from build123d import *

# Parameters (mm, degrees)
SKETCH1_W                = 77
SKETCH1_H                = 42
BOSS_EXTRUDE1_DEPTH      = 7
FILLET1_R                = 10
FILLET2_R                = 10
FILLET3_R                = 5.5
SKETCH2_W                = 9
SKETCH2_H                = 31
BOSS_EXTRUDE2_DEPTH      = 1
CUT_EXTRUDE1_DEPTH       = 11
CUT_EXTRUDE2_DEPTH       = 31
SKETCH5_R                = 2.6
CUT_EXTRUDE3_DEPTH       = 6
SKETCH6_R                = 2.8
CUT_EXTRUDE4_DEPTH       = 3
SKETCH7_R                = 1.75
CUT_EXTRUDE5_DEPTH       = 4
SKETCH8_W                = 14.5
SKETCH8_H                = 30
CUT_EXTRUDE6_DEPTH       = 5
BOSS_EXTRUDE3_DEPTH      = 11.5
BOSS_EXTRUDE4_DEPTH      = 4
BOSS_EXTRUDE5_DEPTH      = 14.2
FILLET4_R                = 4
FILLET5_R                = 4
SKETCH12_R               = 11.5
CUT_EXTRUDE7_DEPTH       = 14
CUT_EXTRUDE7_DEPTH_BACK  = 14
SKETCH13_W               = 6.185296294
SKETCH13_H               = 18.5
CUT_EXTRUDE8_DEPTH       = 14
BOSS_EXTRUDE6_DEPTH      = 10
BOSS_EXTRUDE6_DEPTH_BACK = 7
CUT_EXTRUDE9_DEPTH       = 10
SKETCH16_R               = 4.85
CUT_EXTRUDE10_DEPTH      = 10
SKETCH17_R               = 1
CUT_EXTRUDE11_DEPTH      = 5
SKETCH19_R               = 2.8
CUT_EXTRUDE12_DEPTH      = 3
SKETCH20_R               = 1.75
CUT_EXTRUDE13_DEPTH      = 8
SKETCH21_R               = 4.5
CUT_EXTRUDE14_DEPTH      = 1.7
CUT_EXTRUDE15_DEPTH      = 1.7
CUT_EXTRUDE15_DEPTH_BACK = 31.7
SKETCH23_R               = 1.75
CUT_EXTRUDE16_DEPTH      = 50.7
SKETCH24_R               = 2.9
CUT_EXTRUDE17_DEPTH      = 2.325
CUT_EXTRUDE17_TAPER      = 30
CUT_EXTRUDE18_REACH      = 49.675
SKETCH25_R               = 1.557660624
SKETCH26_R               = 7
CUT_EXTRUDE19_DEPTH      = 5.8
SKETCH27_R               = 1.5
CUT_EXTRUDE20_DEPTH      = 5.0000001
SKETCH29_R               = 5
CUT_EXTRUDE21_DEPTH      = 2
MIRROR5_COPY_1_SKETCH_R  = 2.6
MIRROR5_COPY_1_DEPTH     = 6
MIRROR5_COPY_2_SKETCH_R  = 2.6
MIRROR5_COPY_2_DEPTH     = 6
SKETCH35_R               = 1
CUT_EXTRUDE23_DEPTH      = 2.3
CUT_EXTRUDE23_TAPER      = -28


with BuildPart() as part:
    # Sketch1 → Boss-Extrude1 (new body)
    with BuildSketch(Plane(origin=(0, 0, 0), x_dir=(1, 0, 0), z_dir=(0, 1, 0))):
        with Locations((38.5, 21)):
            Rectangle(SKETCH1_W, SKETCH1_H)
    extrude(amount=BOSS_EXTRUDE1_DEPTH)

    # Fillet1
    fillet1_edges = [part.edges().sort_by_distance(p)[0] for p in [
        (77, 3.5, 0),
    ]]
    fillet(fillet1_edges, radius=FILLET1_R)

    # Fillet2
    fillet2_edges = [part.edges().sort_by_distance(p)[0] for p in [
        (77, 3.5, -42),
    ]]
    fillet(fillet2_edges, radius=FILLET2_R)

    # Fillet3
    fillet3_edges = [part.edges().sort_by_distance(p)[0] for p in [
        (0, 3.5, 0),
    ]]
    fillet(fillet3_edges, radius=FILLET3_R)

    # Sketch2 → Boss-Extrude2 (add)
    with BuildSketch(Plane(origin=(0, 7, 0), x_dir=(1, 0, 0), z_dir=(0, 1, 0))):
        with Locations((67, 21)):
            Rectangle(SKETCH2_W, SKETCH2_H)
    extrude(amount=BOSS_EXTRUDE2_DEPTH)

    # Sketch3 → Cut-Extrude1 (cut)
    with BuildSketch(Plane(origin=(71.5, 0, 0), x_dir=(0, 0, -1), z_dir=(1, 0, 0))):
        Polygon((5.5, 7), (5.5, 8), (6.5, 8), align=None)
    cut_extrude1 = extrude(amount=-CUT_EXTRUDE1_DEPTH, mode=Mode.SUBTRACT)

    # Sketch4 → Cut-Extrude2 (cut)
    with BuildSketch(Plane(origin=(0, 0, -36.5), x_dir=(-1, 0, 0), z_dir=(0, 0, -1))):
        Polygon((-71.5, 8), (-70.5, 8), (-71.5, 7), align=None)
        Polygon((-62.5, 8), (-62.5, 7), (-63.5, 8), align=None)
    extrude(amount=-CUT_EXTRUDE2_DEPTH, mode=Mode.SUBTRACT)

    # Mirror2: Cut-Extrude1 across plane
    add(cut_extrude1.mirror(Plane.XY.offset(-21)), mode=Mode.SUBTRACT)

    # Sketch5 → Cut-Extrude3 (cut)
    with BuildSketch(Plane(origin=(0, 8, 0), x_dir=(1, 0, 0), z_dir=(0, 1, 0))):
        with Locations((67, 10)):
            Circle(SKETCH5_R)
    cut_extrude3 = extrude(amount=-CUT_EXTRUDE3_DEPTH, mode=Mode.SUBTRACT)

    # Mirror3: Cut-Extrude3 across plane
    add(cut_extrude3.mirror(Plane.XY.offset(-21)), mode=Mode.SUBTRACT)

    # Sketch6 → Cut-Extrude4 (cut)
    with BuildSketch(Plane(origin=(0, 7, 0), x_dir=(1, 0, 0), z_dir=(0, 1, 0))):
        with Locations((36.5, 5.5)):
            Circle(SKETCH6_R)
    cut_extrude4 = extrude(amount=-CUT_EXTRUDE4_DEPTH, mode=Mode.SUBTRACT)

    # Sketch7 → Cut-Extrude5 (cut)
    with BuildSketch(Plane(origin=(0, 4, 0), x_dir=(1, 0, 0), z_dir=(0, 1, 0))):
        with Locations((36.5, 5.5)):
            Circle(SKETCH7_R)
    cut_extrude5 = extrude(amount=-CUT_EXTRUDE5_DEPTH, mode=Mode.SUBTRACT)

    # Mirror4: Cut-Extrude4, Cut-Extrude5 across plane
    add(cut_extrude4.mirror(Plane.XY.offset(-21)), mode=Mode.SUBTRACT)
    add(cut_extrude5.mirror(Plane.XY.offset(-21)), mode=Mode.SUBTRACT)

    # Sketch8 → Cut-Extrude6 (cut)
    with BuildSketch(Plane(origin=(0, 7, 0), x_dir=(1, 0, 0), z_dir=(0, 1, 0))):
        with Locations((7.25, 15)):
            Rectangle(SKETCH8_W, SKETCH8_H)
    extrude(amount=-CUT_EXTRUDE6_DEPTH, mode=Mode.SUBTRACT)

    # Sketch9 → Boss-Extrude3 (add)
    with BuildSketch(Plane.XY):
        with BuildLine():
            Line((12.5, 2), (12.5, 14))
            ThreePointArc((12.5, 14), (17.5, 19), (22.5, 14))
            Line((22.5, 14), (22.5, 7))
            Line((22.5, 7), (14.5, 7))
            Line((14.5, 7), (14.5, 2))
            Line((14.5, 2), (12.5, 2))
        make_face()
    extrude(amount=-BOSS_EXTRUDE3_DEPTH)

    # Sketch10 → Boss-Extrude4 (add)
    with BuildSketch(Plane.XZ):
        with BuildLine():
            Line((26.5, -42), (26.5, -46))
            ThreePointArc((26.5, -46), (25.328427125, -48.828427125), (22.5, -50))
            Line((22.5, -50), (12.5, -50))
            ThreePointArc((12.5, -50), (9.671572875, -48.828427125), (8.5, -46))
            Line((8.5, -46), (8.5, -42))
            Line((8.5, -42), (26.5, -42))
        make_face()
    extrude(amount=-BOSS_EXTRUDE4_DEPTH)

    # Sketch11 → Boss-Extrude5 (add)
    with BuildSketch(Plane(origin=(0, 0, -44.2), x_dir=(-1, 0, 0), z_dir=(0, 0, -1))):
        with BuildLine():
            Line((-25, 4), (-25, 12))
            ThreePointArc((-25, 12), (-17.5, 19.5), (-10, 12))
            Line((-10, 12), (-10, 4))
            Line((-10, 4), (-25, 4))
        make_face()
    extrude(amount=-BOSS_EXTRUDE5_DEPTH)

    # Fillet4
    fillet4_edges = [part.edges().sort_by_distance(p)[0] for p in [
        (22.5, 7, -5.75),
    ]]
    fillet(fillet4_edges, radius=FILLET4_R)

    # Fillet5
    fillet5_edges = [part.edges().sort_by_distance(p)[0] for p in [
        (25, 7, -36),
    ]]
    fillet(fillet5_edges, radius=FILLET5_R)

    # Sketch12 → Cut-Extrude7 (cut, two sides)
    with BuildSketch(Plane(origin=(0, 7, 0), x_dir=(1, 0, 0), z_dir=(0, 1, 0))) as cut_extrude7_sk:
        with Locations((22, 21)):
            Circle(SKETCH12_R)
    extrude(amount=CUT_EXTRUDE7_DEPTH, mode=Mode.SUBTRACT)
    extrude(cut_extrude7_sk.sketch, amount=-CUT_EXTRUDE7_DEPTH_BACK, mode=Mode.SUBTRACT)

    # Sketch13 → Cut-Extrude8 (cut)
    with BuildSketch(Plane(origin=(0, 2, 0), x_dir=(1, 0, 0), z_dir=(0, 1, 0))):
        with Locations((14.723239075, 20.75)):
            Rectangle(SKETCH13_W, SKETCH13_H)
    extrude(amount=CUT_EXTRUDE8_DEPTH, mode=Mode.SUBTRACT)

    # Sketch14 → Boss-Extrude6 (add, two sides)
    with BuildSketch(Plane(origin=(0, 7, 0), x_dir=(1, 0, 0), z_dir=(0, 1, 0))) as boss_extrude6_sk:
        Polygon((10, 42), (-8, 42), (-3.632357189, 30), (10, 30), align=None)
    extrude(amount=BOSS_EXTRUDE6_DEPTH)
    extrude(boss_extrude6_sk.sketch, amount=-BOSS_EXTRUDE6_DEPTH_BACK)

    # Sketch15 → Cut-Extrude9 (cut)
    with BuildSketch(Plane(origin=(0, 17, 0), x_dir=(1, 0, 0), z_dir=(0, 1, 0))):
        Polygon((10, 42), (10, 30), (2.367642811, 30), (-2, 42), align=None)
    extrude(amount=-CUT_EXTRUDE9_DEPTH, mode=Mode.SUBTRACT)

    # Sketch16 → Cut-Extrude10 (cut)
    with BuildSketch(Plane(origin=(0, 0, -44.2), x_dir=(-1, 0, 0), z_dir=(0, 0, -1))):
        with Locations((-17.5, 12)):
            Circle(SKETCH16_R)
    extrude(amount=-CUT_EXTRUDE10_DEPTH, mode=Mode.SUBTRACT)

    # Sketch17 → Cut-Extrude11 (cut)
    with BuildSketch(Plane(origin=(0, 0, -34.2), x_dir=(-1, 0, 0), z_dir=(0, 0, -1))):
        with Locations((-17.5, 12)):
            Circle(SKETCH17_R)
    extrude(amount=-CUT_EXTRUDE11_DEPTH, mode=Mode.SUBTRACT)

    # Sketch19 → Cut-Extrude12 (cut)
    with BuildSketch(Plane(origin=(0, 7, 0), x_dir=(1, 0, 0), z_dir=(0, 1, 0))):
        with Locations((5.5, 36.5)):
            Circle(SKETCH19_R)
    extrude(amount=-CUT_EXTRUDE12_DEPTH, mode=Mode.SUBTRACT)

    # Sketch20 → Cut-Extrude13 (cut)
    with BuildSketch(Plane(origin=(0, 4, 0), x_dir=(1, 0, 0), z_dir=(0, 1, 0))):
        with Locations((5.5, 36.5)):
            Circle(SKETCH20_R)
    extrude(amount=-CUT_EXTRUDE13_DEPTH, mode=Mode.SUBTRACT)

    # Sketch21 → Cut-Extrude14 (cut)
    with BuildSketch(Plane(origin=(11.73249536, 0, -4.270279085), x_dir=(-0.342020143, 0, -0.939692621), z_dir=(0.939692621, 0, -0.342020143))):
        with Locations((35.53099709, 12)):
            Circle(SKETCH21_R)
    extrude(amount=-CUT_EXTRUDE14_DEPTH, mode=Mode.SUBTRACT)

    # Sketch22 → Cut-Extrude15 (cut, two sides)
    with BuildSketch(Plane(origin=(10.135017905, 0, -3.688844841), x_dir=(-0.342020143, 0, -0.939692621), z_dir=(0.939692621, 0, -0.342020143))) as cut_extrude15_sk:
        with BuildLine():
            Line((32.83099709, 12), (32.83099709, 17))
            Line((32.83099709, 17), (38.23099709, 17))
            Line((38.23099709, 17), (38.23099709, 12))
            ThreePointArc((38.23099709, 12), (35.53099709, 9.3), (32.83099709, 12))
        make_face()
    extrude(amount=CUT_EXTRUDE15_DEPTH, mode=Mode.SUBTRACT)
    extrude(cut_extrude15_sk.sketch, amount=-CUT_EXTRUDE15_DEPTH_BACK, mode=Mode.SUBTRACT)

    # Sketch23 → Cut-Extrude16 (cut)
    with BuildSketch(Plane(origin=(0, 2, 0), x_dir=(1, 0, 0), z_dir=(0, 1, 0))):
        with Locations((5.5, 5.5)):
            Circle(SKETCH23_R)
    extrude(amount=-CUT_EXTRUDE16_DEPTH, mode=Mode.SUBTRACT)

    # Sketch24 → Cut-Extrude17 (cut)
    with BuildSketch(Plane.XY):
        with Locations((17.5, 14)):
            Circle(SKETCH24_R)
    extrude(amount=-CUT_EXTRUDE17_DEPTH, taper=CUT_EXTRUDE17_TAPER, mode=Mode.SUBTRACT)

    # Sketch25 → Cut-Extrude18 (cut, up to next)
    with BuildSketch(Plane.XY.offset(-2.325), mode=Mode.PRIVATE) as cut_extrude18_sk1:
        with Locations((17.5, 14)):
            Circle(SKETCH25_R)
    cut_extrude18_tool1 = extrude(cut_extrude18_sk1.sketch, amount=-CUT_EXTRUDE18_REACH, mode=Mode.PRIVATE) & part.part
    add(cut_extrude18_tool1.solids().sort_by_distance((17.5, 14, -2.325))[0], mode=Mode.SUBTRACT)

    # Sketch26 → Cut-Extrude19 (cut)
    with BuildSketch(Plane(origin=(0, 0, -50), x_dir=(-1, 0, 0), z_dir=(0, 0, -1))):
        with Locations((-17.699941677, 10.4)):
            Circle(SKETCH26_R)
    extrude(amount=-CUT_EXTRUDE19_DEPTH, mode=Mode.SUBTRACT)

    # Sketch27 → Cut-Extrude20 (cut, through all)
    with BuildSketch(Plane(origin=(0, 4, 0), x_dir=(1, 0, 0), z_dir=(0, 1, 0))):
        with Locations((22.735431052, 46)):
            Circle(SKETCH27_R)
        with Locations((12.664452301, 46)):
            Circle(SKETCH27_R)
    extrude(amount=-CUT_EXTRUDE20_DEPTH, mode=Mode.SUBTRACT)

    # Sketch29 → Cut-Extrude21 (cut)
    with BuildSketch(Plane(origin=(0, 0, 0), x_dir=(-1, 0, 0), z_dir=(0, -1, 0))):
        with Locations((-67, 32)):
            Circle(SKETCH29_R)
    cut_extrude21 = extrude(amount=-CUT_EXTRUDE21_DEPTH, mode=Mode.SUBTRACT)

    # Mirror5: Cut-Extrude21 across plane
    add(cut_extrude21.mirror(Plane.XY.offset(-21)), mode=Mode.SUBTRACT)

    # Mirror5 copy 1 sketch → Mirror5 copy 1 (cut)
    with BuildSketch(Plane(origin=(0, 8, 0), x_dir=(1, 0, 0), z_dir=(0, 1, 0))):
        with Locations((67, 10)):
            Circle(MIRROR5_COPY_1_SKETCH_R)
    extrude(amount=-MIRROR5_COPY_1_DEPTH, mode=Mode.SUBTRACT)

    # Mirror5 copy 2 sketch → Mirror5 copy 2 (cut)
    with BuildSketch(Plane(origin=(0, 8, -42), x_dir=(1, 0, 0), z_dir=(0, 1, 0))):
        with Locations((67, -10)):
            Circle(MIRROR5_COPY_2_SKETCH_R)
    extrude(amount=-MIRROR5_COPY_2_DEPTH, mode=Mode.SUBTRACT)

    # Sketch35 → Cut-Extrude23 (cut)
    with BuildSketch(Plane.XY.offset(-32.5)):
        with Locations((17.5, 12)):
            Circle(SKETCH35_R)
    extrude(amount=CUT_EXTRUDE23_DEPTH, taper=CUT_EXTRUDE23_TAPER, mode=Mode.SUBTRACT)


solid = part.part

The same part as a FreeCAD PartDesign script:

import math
import FreeCAD as App
import Part
import Sketcher
Q = App.Units.Quantity


def edges_at(feature, points):
    """Names of the edges that pass closest to the given points."""
    edges = feature.Shape.Edges
    near = lambda p: min(range(len(edges)), key=lambda i: edges[i].distToShape(Part.Vertex(*p))[0])
    return sorted({f"Edge{near(p) + 1}" for p in points})

doc = App.newDocument("Part")
body = doc.addObject("PartDesign::Body", "Body")

# Sketch on XZ plane
sketch1 = body.newObject("Sketcher::SketchObject", "Sketch")
sketch1.AttachmentSupport = (doc.getObject("XZ_Plane"), [""])
sketch1.MapMode = "FlatFace"
sketch1.addGeometry(Part.LineSegment(App.Vector(0, -42, 0), App.Vector(0, 0, 0)), False)
sketch1.addGeometry(Part.LineSegment(App.Vector(0, 0, 0), App.Vector(77, 0, 0)), False)
sketch1.addGeometry(Part.LineSegment(App.Vector(77, 0, 0), App.Vector(77, -42, 0)), False)
sketch1.addGeometry(Part.LineSegment(App.Vector(77, -42, 0), App.Vector(0, -42, 0)), False)
sketch1.addConstraint(Sketcher.Constraint("Coincident", 0, 2, 1, 1))
sketch1.addConstraint(Sketcher.Constraint("Coincident", 1, 2, 2, 1))
sketch1.addConstraint(Sketcher.Constraint("Coincident", 2, 2, 3, 1))
sketch1.addConstraint(Sketcher.Constraint("Coincident", 3, 2, 0, 1))
sketch1.addConstraint(Sketcher.Constraint("Vertical", 0))
sketch1.addConstraint(Sketcher.Constraint("Horizontal", 1))
sketch1.addConstraint(Sketcher.Constraint("Vertical", 2))
sketch1.addConstraint(Sketcher.Constraint("Horizontal", 3))
sketch1.addConstraint(Sketcher.Constraint("Coincident", 0, 2, -1, 1))
sketch1.addConstraint(Sketcher.Constraint("DistanceX", 1, 1, 1, 2, Q("77 mm")))
sketch1.addConstraint(Sketcher.Constraint("DistanceY", 0, 1, 0, 2, Q("42 mm")))
pad1 = body.newObject("PartDesign::Pad", "Pad")
pad1.Profile = sketch1
pad1.Length = 7
pad1.Reversed = True
doc.recompute()

fillet = body.newObject("PartDesign::Fillet", "Fillet")
fillet.Base = (pad1, edges_at(pad1, [(77, 3.5, 0)]))
fillet.Radius = 10
doc.recompute()

fillet2 = body.newObject("PartDesign::Fillet", "Fillet001")
fillet2.Base = (fillet, edges_at(fillet, [(77, 3.5, -42)]))
fillet2.Radius = 10
doc.recompute()

fillet3 = body.newObject("PartDesign::Fillet", "Fillet002")
fillet3.Base = (fillet2, edges_at(fillet2, [(0, 3.5, 0)]))
fillet3.Radius = 5.5

# Sketch on XZ plane
sketch2 = body.newObject("Sketcher::SketchObject", "Sketch001")
sketch2.AttachmentSupport = (doc.getObject("XZ_Plane"), [""])
sketch2.MapMode = "FlatFace"
sketch2.AttachmentOffset = App.Placement(App.Vector(0, 0, -7), App.Rotation())
sketch2.addGeometry(Part.LineSegment(App.Vector(62, -36, 0), App.Vector(62, -6, 0)), False)
sketch2.addGeometry(Part.LineSegment(App.Vector(62, -6, 0), App.Vector(72, -6, 0)), False)
sketch2.addGeometry(Part.LineSegment(App.Vector(72, -6, 0), App.Vector(72, -36, 0)), False)
sketch2.addGeometry(Part.LineSegment(App.Vector(72, -36, 0), App.Vector(62, -36, 0)), False)
sketch2.addConstraint(Sketcher.Constraint("Coincident", 0, 2, 1, 1))
sketch2.addConstraint(Sketcher.Constraint("Coincident", 1, 2, 2, 1))
sketch2.addConstraint(Sketcher.Constraint("Coincident", 2, 2, 3, 1))
sketch2.addConstraint(Sketcher.Constraint("Coincident", 3, 2, 0, 1))
sketch2.addConstraint(Sketcher.Constraint("Vertical", 0))
sketch2.addConstraint(Sketcher.Constraint("Horizontal", 1))
sketch2.addConstraint(Sketcher.Constraint("Vertical", 2))
sketch2.addConstraint(Sketcher.Constraint("Horizontal", 3))
sketch2.addConstraint(Sketcher.Constraint("DistanceX", 1, 1, 1, 2, Q("9 mm")))
sketch2.addConstraint(Sketcher.Constraint("DistanceY", 0, 1, 0, 2, Q("31 mm")))
sketch2.addConstraint(Sketcher.Constraint("DistanceX", -1, 1, 0, 2, Q("62.5 mm")))
sketch2.addConstraint(Sketcher.Constraint("DistanceY", 0, 2, -1, 1, Q("5.5 mm")))
pad2 = body.newObject("PartDesign::Pad", "Pad001")
pad2.Profile = sketch2
pad2.Length = 1
pad2.Reversed = True

# Sketch on YZ plane
sketch3 = body.newObject("Sketcher::SketchObject", "Sketch002")
sketch3.AttachmentSupport = (doc.getObject("YZ_Plane"), [""])
sketch3.MapMode = "FlatFace"
sketch3.AttachmentOffset = App.Placement(App.Vector(0, 0, 71.5), App.Rotation())
sketch3.addGeometry(Part.LineSegment(App.Vector(8, -5.5, 0), App.Vector(7, -5.5, 0)), False)
sketch3.addGeometry(Part.LineSegment(App.Vector(7, -5.5, 0), App.Vector(8, -6.5, 0)), False)
sketch3.addGeometry(Part.LineSegment(App.Vector(8, -6.5, 0), App.Vector(8, -5.5, 0)), False)
sketch3.addConstraint(Sketcher.Constraint("Coincident", 0, 2, 1, 1))
sketch3.addConstraint(Sketcher.Constraint("Coincident", 1, 2, 2, 1))
sketch3.addConstraint(Sketcher.Constraint("Coincident", 2, 2, 0, 1))
sketch3.addConstraint(Sketcher.Constraint("Horizontal", 0))
sketch3.addConstraint(Sketcher.Constraint("Vertical", 2))
sketch3.addConstraint(Sketcher.Constraint("Equal", 0, 2))
sketch3.addConstraint(Sketcher.Constraint("DistanceX", 0, 2, 0, 1, Q("1 mm")))
sketch3.addConstraint(Sketcher.Constraint("DistanceX", -1, 1, 0, 2, Q("7 mm")))
sketch3.addConstraint(Sketcher.Constraint("DistanceY", 0, 2, -1, 1, Q("5.5 mm")))
pocket1 = body.newObject("PartDesign::Pocket", "Pocket")
pocket1.Profile = sketch3
pocket1.Length = 11

# Sketch on XY plane
sketch4 = body.newObject("Sketcher::SketchObject", "Sketch003")
sketch4.AttachmentSupport = (doc.getObject("XY_Plane"), [""])
sketch4.MapMode = "FlatFace"
sketch4.AttachmentOffset = App.Placement(App.Vector(0, 0, -36.5), App.Rotation())
sketch4.addGeometry(Part.LineSegment(App.Vector(70.5, 8, 0), App.Vector(71.5, 8, 0)), False)
sketch4.addGeometry(Part.LineSegment(App.Vector(71.5, 8, 0), App.Vector(71.5, 7, 0)), False)
sketch4.addGeometry(Part.LineSegment(App.Vector(71.5, 7, 0), App.Vector(70.5, 8, 0)), False)
sketch4.addGeometry(Part.LineSegment(App.Vector(62.5, 7, 0), App.Vector(62.5, 8, 0)), False)
sketch4.addGeometry(Part.LineSegment(App.Vector(62.5, 8, 0), App.Vector(63.5, 8, 0)), False)
sketch4.addGeometry(Part.LineSegment(App.Vector(63.5, 8, 0), App.Vector(62.5, 7, 0)), False)
sketch4.addConstraint(Sketcher.Constraint("Coincident", 0, 2, 1, 1))
sketch4.addConstraint(Sketcher.Constraint("Coincident", 1, 2, 2, 1))
sketch4.addConstraint(Sketcher.Constraint("Coincident", 2, 2, 0, 1))
sketch4.addConstraint(Sketcher.Constraint("Coincident", 3, 2, 4, 1))
sketch4.addConstraint(Sketcher.Constraint("Coincident", 4, 2, 5, 1))
sketch4.addConstraint(Sketcher.Constraint("Coincident", 5, 2, 3, 1))
sketch4.addConstraint(Sketcher.Constraint("Horizontal", 0))
sketch4.addConstraint(Sketcher.Constraint("Vertical", 1))
sketch4.addConstraint(Sketcher.Constraint("Vertical", 3))
sketch4.addConstraint(Sketcher.Constraint("Horizontal", 4))
sketch4.addConstraint(Sketcher.Constraint("Perpendicular", 2, 5))
sketch4.addConstraint(Sketcher.Constraint("Horizontal", 2, 2, 3, 2))
sketch4.addConstraint(Sketcher.Constraint("Horizontal", 1, 2, 5, 2))
sketch4.addConstraint(Sketcher.Constraint("Equal", 0, 4))
sketch4.addConstraint(Sketcher.Constraint("DistanceX", 0, 1, 0, 2, Q("1 mm")))
sketch4.addConstraint(Sketcher.Constraint("DistanceY", -1, 1, 0, 2, Q("8 mm")))
sketch4.addConstraint(Sketcher.Constraint("DistanceX", 3, 2, 2, 2, Q("8 mm")))
sketch4.addConstraint(Sketcher.Constraint("DistanceX", -1, 1, 0, 2, Q("71.5 mm")))
pocket2 = body.newObject("PartDesign::Pocket", "Pocket001")
pocket2.Profile = sketch4
pocket2.Length = 31
pocket2.Reversed = True
doc.recompute()

datumplane = body.newObject("PartDesign::Plane", "DatumPlane")
datumplane.AttachmentSupport = (doc.getObject("XY_Plane"), [""])
datumplane.MapMode = "FlatFace"
datumplane.AttachmentOffset = App.Placement(App.Vector(0, 0, -21), App.Rotation())
mirrored = body.newObject("PartDesign::Mirrored", "Mirrored")
mirrored.Originals = [pocket1]
mirrored.MirrorPlane = (datumplane, [""])
body.Tip = mirrored

# Sketch on XZ plane
sketch5 = body.newObject("Sketcher::SketchObject", "Sketch004")
sketch5.AttachmentSupport = (doc.getObject("XZ_Plane"), [""])
sketch5.MapMode = "FlatFace"
sketch5.AttachmentOffset = App.Placement(App.Vector(0, 0, -8), App.Rotation())
sketch5.addGeometry(Part.Circle(App.Vector(67, -10, 0), App.Vector(0, 0, 1), 2.6), False)
sketch5.addConstraint(Sketcher.Constraint("Diameter", 0, Q("5.2 mm")))
sketch5.addConstraint(Sketcher.Constraint("DistanceX", -1, 1, 0, 3, Q("67 mm")))
sketch5.addConstraint(Sketcher.Constraint("DistanceY", 0, 3, -1, 1, Q("10 mm")))
pocket3 = body.newObject("PartDesign::Pocket", "Pocket002")
pocket3.Profile = sketch5
pocket3.Length = 6
pocket3.Reversed = True
doc.recompute()

datumplane2 = body.newObject("PartDesign::Plane", "DatumPlane001")
datumplane2.AttachmentSupport = (doc.getObject("XY_Plane"), [""])
datumplane2.MapMode = "FlatFace"
datumplane2.AttachmentOffset = App.Placement(App.Vector(0, 0, -21), App.Rotation())
mirrored2 = body.newObject("PartDesign::Mirrored", "Mirrored001")
mirrored2.Originals = [pocket3]
mirrored2.MirrorPlane = (datumplane2, [""])
body.Tip = mirrored2

# Sketch on XZ plane
sketch6 = body.newObject("Sketcher::SketchObject", "Sketch005")
sketch6.AttachmentSupport = (doc.getObject("XZ_Plane"), [""])
sketch6.MapMode = "FlatFace"
sketch6.AttachmentOffset = App.Placement(App.Vector(0, 0, -7), App.Rotation())
sketch6.addGeometry(Part.Circle(App.Vector(36.5, -5.5, 0), App.Vector(0, 0, 1), 2.8), False)
sketch6.addConstraint(Sketcher.Constraint("Diameter", 0, Q("5.6 mm")))
sketch6.addConstraint(Sketcher.Constraint("DistanceX", -1, 1, 0, 3, Q("36.5 mm")))
sketch6.addConstraint(Sketcher.Constraint("DistanceY", 0, 3, -1, 1, Q("5.5 mm")))
pocket4 = body.newObject("PartDesign::Pocket", "Pocket003")
pocket4.Profile = sketch6
pocket4.Length = 3
pocket4.Reversed = True

# Sketch on XZ plane
sketch7 = body.newObject("Sketcher::SketchObject", "Sketch006")
sketch7.AttachmentSupport = (doc.getObject("XZ_Plane"), [""])
sketch7.MapMode = "FlatFace"
sketch7.AttachmentOffset = App.Placement(App.Vector(0, 0, -4), App.Rotation())
sketch7.addGeometry(Part.Circle(App.Vector(36.5, -5.5, 0), App.Vector(0, 0, 1), 1.8), False)
sketch7.addConstraint(Sketcher.Constraint("Diameter", 0, Q("3.5 mm")))
sketch7.addConstraint(Sketcher.Constraint("DistanceX", -1, 1, 0, 3, Q("36.5 mm")))
sketch7.addConstraint(Sketcher.Constraint("DistanceY", 0, 3, -1, 1, Q("5.5 mm")))
pocket5 = body.newObject("PartDesign::Pocket", "Pocket004")
pocket5.Profile = sketch7
pocket5.Length = 4
pocket5.Reversed = True
doc.recompute()

datumplane3 = body.newObject("PartDesign::Plane", "DatumPlane002")
datumplane3.AttachmentSupport = (doc.getObject("XY_Plane"), [""])
datumplane3.MapMode = "FlatFace"
datumplane3.AttachmentOffset = App.Placement(App.Vector(0, 0, -21), App.Rotation())
mirrored3 = body.newObject("PartDesign::Mirrored", "Mirrored002")
mirrored3.Originals = [pocket4, pocket5]
mirrored3.MirrorPlane = (datumplane3, [""])
body.Tip = mirrored3

# Sketch on XZ plane
sketch8 = body.newObject("Sketcher::SketchObject", "Sketch007")
sketch8.AttachmentSupport = (doc.getObject("XZ_Plane"), [""])
sketch8.MapMode = "FlatFace"
sketch8.AttachmentOffset = App.Placement(App.Vector(0, 0, -7), App.Rotation())
sketch8.addGeometry(Part.LineSegment(App.Vector(0, -30, 0), App.Vector(0, 0, 0)), False)
sketch8.addGeometry(Part.LineSegment(App.Vector(0, 0, 0), App.Vector(14, 0, 0)), False)
sketch8.addGeometry(Part.LineSegment(App.Vector(14, 0, 0), App.Vector(14, -30, 0)), False)
sketch8.addGeometry(Part.LineSegment(App.Vector(14, -30, 0), App.Vector(0, -30, 0)), False)
sketch8.addConstraint(Sketcher.Constraint("Coincident", 0, 2, 1, 1))
sketch8.addConstraint(Sketcher.Constraint("Coincident", 1, 2, 2, 1))
sketch8.addConstraint(Sketcher.Constraint("Coincident", 2, 2, 3, 1))
sketch8.addConstraint(Sketcher.Constraint("Coincident", 3, 2, 0, 1))
sketch8.addConstraint(Sketcher.Constraint("Vertical", 0))
sketch8.addConstraint(Sketcher.Constraint("Horizontal", 1))
sketch8.addConstraint(Sketcher.Constraint("Vertical", 2))
sketch8.addConstraint(Sketcher.Constraint("Horizontal", 3))
sketch8.addConstraint(Sketcher.Constraint("Coincident", 0, 2, -1, 1))
sketch8.addConstraint(Sketcher.Constraint("DistanceY", 0, 1, 0, 2, Q("30 mm")))
sketch8.addConstraint(Sketcher.Constraint("DistanceX", 1, 1, 1, 2, Q("14.5 mm")))
pocket6 = body.newObject("PartDesign::Pocket", "Pocket005")
pocket6.Profile = sketch8
pocket6.Length = 5
pocket6.Reversed = True

# Sketch on XY plane
sketch9 = body.newObject("Sketcher::SketchObject", "Sketch008")
sketch9.AttachmentSupport = (doc.getObject("XY_Plane"), [""])
sketch9.MapMode = "FlatFace"
sketch9.addGeometry(Part.LineSegment(App.Vector(12.5, 14, 0), App.Vector(12.5, 2, 0)), False)
sketch9.addGeometry(Part.LineSegment(App.Vector(12.5, 2, 0), App.Vector(14.5, 2, 0)), False)
sketch9.addGeometry(Part.LineSegment(App.Vector(14.5, 2, 0), App.Vector(14.5, 7, 0)), False)
sketch9.addGeometry(Part.LineSegment(App.Vector(14.5, 7, 0), App.Vector(22.5, 7, 0)), False)
sketch9.addGeometry(Part.LineSegment(App.Vector(22.5, 7, 0), App.Vector(22.5, 14, 0)), False)
sketch9.addGeometry(Part.ArcOfCircle(Part.Circle(App.Vector(17.5, 14, 0), App.Vector(0, 0, 1), 5), math.radians(0), math.radians(180)), False)
sketch9.addConstraint(Sketcher.Constraint("Coincident", 0, 2, 1, 1))
sketch9.addConstraint(Sketcher.Constraint("Coincident", 1, 2, 2, 1))
sketch9.addConstraint(Sketcher.Constraint("Coincident", 2, 2, 3, 1))
sketch9.addConstraint(Sketcher.Constraint("Coincident", 3, 2, 4, 1))
sketch9.addConstraint(Sketcher.Constraint("Tangent", 4, 2, 5, 1))
sketch9.addConstraint(Sketcher.Constraint("Tangent", 5, 2, 0, 1))
sketch9.addConstraint(Sketcher.Constraint("Vertical", 0))
sketch9.addConstraint(Sketcher.Constraint("Horizontal", 1))
sketch9.addConstraint(Sketcher.Constraint("Vertical", 2))
sketch9.addConstraint(Sketcher.Constraint("Horizontal", 3))
sketch9.addConstraint(Sketcher.Constraint("Vertical", 4))
sketch9.addConstraint(Sketcher.Constraint("Radius", 5, Q("5 mm")))
sketch9.addConstraint(Sketcher.Constraint("DistanceX", 1, 1, 1, 2, Q("2 mm")))
sketch9.addConstraint(Sketcher.Constraint("DistanceY", 0, 2, 0, 1, Q("12 mm")))
sketch9.addConstraint(Sketcher.Constraint("DistanceY", 2, 1, 2, 2, Q("5 mm")))
sketch9.addConstraint(Sketcher.Constraint("DistanceY", -1, 1, 5, 3, Q("14 mm")))
sketch9.addConstraint(Sketcher.Constraint("DistanceX", -1, 1, 5, 3, Q("17.5 mm")))
pad3 = body.newObject("PartDesign::Pad", "Pad002")
pad3.Profile = sketch9
pad3.Length = 11.5
pad3.Reversed = True

# Sketch on XZ plane
sketch10 = body.newObject("Sketcher::SketchObject", "Sketch009")
sketch10.AttachmentSupport = (doc.getObject("XZ_Plane"), [""])
sketch10.MapMode = "FlatFace"
sketch10.addGeometry(Part.LineSegment(App.Vector(26.5, -46, 0), App.Vector(26.5, -42, 0)), False)
sketch10.addGeometry(Part.LineSegment(App.Vector(26.5, -42, 0), App.Vector(8.5, -42, 0)), False)
sketch10.addGeometry(Part.LineSegment(App.Vector(8.5, -42, 0), App.Vector(8.5, -46, 0)), False)
sketch10.addGeometry(Part.ArcOfCircle(Part.Circle(App.Vector(12.5, -46, 0), App.Vector(0, 0, 1), 4), math.radians(180), math.radians(270)), False)
sketch10.addGeometry(Part.LineSegment(App.Vector(12.5, -50, 0), App.Vector(22.5, -50, 0)), False)
sketch10.addGeometry(Part.ArcOfCircle(Part.Circle(App.Vector(22.5, -46, 0), App.Vector(0, 0, 1), 4), math.radians(-90), math.radians(0)), False)
sketch10.addConstraint(Sketcher.Constraint("Coincident", 0, 2, 1, 1))
sketch10.addConstraint(Sketcher.Constraint("Coincident", 1, 2, 2, 1))
sketch10.addConstraint(Sketcher.Constraint("Tangent", 2, 2, 3, 1))
sketch10.addConstraint(Sketcher.Constraint("Tangent", 3, 2, 4, 1))
sketch10.addConstraint(Sketcher.Constraint("Tangent", 4, 2, 5, 1))
sketch10.addConstraint(Sketcher.Constraint("Tangent", 5, 2, 0, 1))
sketch10.addConstraint(Sketcher.Constraint("Vertical", 0))
sketch10.addConstraint(Sketcher.Constraint("Horizontal", 1))
sketch10.addConstraint(Sketcher.Constraint("Vertical", 2))
sketch10.addConstraint(Sketcher.Constraint("Horizontal", 4))
sketch10.addConstraint(Sketcher.Constraint("Equal", 3, 5))
sketch10.addConstraint(Sketcher.Constraint("Radius", 3, Q("4 mm")))
sketch10.addConstraint(Sketcher.Constraint("DistanceX", 1, 2, 1, 1, Q("18 mm")))
sketch10.addConstraint(Sketcher.Constraint("DistanceY", 0, 1, 0, 2, Q("4 mm")))
sketch10.addConstraint(Sketcher.Constraint("DistanceY", 3, 3, -1, 1, Q("46 mm")))
sketch10.addConstraint(Sketcher.Constraint("DistanceX", -1, 1, 3, 3, Q("12.5 mm")))
pad4 = body.newObject("PartDesign::Pad", "Pad003")
pad4.Profile = sketch10
pad4.Length = 4
pad4.Reversed = True

# Sketch on XY plane
sketch11 = body.newObject("Sketcher::SketchObject", "Sketch010")
sketch11.AttachmentSupport = (doc.getObject("XY_Plane"), [""])
sketch11.MapMode = "FlatFace"
sketch11.AttachmentOffset = App.Placement(App.Vector(0, 0, -44.2), App.Rotation())
sketch11.addGeometry(Part.LineSegment(App.Vector(25, 12, 0), App.Vector(25, 4, 0)), False)
sketch11.addGeometry(Part.LineSegment(App.Vector(25, 4, 0), App.Vector(10, 4, 0)), False)
sketch11.addGeometry(Part.LineSegment(App.Vector(10, 4, 0), App.Vector(10, 12, 0)), False)
sketch11.addGeometry(Part.ArcOfCircle(Part.Circle(App.Vector(18, 12, 0), App.Vector(0, 0, 1), 8), math.radians(0), math.radians(180)), False)
sketch11.addConstraint(Sketcher.Constraint("Coincident", 0, 2, 1, 1))
sketch11.addConstraint(Sketcher.Constraint("Coincident", 1, 2, 2, 1))
sketch11.addConstraint(Sketcher.Constraint("Tangent", 2, 2, 3, 2))
sketch11.addConstraint(Sketcher.Constraint("Tangent", 3, 1, 0, 1))
sketch11.addConstraint(Sketcher.Constraint("Vertical", 0))
sketch11.addConstraint(Sketcher.Constraint("Horizontal", 1))
sketch11.addConstraint(Sketcher.Constraint("Vertical", 2))
sketch11.addConstraint(Sketcher.Constraint("Radius", 3, Q("7.5 mm")))
sketch11.addConstraint(Sketcher.Constraint("DistanceY", 0, 2, 0, 1, Q("8 mm")))
sketch11.addConstraint(Sketcher.Constraint("DistanceY", -1, 1, 3, 3, Q("12 mm")))
sketch11.addConstraint(Sketcher.Constraint("DistanceX", -1, 1, 0, 2, Q("25 mm")))
pad5 = body.newObject("PartDesign::Pad", "Pad004")
pad5.Profile = sketch11
pad5.Length = 14.2
doc.recompute()

fillet4 = body.newObject("PartDesign::Fillet", "Fillet003")
fillet4.Base = (pad5, edges_at(pad5, [(22.5, 7, -5.75)]))
fillet4.Radius = 4
doc.recompute()

fillet5 = body.newObject("PartDesign::Fillet", "Fillet004")
fillet5.Base = (fillet4, edges_at(fillet4, [(25, 7, -36)]))
fillet5.Radius = 4

# Sketch on XZ plane
sketch12 = body.newObject("Sketcher::SketchObject", "Sketch011")
sketch12.AttachmentSupport = (doc.getObject("XZ_Plane"), [""])
sketch12.MapMode = "FlatFace"
sketch12.AttachmentOffset = App.Placement(App.Vector(0, 0, -7), App.Rotation())
sketch12.addGeometry(Part.Circle(App.Vector(22, -21, 0), App.Vector(0, 0, 1), 12), False)
sketch12.addConstraint(Sketcher.Constraint("Diameter", 0, Q("23 mm")))
sketch12.addConstraint(Sketcher.Constraint("DistanceX", -1, 1, 0, 3, Q("22 mm")))
sketch12.addConstraint(Sketcher.Constraint("DistanceY", 0, 3, -1, 1, Q("21 mm")))
pocket7 = body.newObject("PartDesign::Pocket", "Pocket006")
pocket7.Profile = sketch12
pocket7.Type = "ThroughAll"
pocket7.Midplane = True

# Sketch on XZ plane
sketch13 = body.newObject("Sketcher::SketchObject", "Sketch012")
sketch13.AttachmentSupport = (doc.getObject("XZ_Plane"), [""])
sketch13.MapMode = "FlatFace"
sketch13.AttachmentOffset = App.Placement(App.Vector(0, 0, -2), App.Rotation())
sketch13.addGeometry(Part.LineSegment(App.Vector(12, -30, 0), App.Vector(12, -12, 0)), False)
sketch13.addGeometry(Part.LineSegment(App.Vector(12, -12, 0), App.Vector(18, -12, 0)), False)
sketch13.addGeometry(Part.LineSegment(App.Vector(18, -12, 0), App.Vector(18, -30, 0)), False)
sketch13.addGeometry(Part.LineSegment(App.Vector(18, -30, 0), App.Vector(12, -30, 0)), False)
sketch13.addConstraint(Sketcher.Constraint("Coincident", 0, 2, 1, 1))
sketch13.addConstraint(Sketcher.Constraint("Coincident", 1, 2, 2, 1))
sketch13.addConstraint(Sketcher.Constraint("Coincident", 2, 2, 3, 1))
sketch13.addConstraint(Sketcher.Constraint("Coincident", 3, 2, 0, 1))
sketch13.addConstraint(Sketcher.Constraint("Vertical", 0))
sketch13.addConstraint(Sketcher.Constraint("Horizontal", 1))
sketch13.addConstraint(Sketcher.Constraint("Vertical", 2))
sketch13.addConstraint(Sketcher.Constraint("Horizontal", 3))
sketch13.addConstraint(Sketcher.Constraint("DistanceY", 0, 1, 0, 2, Q("18.5 mm")))
sketch13.addConstraint(Sketcher.Constraint("DistanceY", 2, 2, -1, 1, Q("30 mm")))
sketch13.addConstraint(Sketcher.Constraint("DistanceX", 1, 1, 1, 2, Q("6.185296 mm")))
sketch13.addConstraint(Sketcher.Constraint("DistanceX", -1, 1, 0, 2, Q("11.630591 mm")))
pocket8 = body.newObject("PartDesign::Pocket", "Pocket007")
pocket8.Profile = sketch13
pocket8.Length = 14

# Sketch on XZ plane
sketch14 = body.newObject("Sketcher::SketchObject", "Sketch013")
sketch14.AttachmentSupport = (doc.getObject("XZ_Plane"), [""])
sketch14.MapMode = "FlatFace"
sketch14.AttachmentOffset = App.Placement(App.Vector(0, 0, -7), App.Rotation())
sketch14.addGeometry(Part.LineSegment(App.Vector(10, -42, 0), App.Vector(-8, -42, 0)), False)
sketch14.addGeometry(Part.LineSegment(App.Vector(-8, -42, 0), App.Vector(-4, -30, 0)), False)
sketch14.addGeometry(Part.LineSegment(App.Vector(-4, -30, 0), App.Vector(10, -30, 0)), False)
sketch14.addGeometry(Part.LineSegment(App.Vector(10, -30, 0), App.Vector(10, -42, 0)), False)
sketch14.addConstraint(Sketcher.Constraint("Coincident", 0, 2, 1, 1))
sketch14.addConstraint(Sketcher.Constraint("Coincident", 1, 2, 2, 1))
sketch14.addConstraint(Sketcher.Constraint("Coincident", 2, 2, 3, 1))
sketch14.addConstraint(Sketcher.Constraint("Coincident", 3, 2, 0, 1))
sketch14.addConstraint(Sketcher.Constraint("Horizontal", 0))
sketch14.addConstraint(Sketcher.Constraint("Horizontal", 2))
sketch14.addConstraint(Sketcher.Constraint("Vertical", 3))
sketch14.addConstraint(Sketcher.Constraint("DistanceX", 0, 2, 0, 1, Q("18 mm")))
sketch14.addConstraint(Sketcher.Constraint("DistanceY", 3, 2, 3, 1, Q("12 mm")))
sketch14.addConstraint(Sketcher.Constraint("Angle", 1, Q("70 deg")))
sketch14.addConstraint(Sketcher.Constraint("DistanceX", 0, 2, -1, 1, Q("8 mm")))
sketch14.addConstraint(Sketcher.Constraint("DistanceY", 0, 2, -1, 1, Q("42 mm")))
pad6 = body.newObject("PartDesign::Pad", "Pad005")
pad6.Profile = sketch14
pad6.Type = "TwoLengths"
pad6.Length = 10
pad6.Length2 = 7
pad6.Reversed = True

# Sketch on XZ plane
sketch15 = body.newObject("Sketcher::SketchObject", "Sketch014")
sketch15.AttachmentSupport = (doc.getObject("XZ_Plane"), [""])
sketch15.MapMode = "FlatFace"
sketch15.AttachmentOffset = App.Placement(App.Vector(0, 0, -17), App.Rotation())
sketch15.addGeometry(Part.LineSegment(App.Vector(10, -30, 0), App.Vector(10, -42, 0)), False)
sketch15.addGeometry(Part.LineSegment(App.Vector(10, -42, 0), App.Vector(-2, -42, 0)), False)
sketch15.addGeometry(Part.LineSegment(App.Vector(-2, -42, 0), App.Vector(2, -30, 0)), False)
sketch15.addGeometry(Part.LineSegment(App.Vector(2, -30, 0), App.Vector(10, -30, 0)), False)
sketch15.addConstraint(Sketcher.Constraint("Coincident", 0, 2, 1, 1))
sketch15.addConstraint(Sketcher.Constraint("Coincident", 1, 2, 2, 1))
sketch15.addConstraint(Sketcher.Constraint("Coincident", 2, 2, 3, 1))
sketch15.addConstraint(Sketcher.Constraint("Coincident", 3, 2, 0, 1))
sketch15.addConstraint(Sketcher.Constraint("Vertical", 0))
sketch15.addConstraint(Sketcher.Constraint("Horizontal", 1))
sketch15.addConstraint(Sketcher.Constraint("Horizontal", 3))
sketch15.addConstraint(Sketcher.Constraint("Equal", 1, 0))
sketch15.addConstraint(Sketcher.Constraint("DistanceX", 1, 2, 1, 1, Q("12 mm")))
sketch15.addConstraint(Sketcher.Constraint("Angle", 2, Q("70 deg")))
sketch15.addConstraint(Sketcher.Constraint("DistanceX", -1, 1, 0, 2, Q("10 mm")))
sketch15.addConstraint(Sketcher.Constraint("DistanceY", 0, 2, -1, 1, Q("42 mm")))
pocket9 = body.newObject("PartDesign::Pocket", "Pocket008")
pocket9.Profile = sketch15
pocket9.Length = 10
pocket9.Reversed = True

# Sketch on XY plane
sketch16 = body.newObject("Sketcher::SketchObject", "Sketch015")
sketch16.AttachmentSupport = (doc.getObject("XY_Plane"), [""])
sketch16.MapMode = "FlatFace"
sketch16.AttachmentOffset = App.Placement(App.Vector(0, 0, -44.2), App.Rotation())
sketch16.addGeometry(Part.Circle(App.Vector(17.5, 12, 0), App.Vector(0, 0, 1), 4.8), False)
sketch16.addConstraint(Sketcher.Constraint("Diameter", 0, Q("9.7 mm")))
sketch16.addConstraint(Sketcher.Constraint("DistanceY", -1, 1, 0, 3, Q("12 mm")))
sketch16.addConstraint(Sketcher.Constraint("DistanceX", -1, 1, 0, 3, Q("17.5 mm")))
pocket10 = body.newObject("PartDesign::Pocket", "Pocket009")
pocket10.Profile = sketch16
pocket10.Length = 10
pocket10.Reversed = True

# Sketch on XY plane
sketch17 = body.newObject("Sketcher::SketchObject", "Sketch016")
sketch17.AttachmentSupport = (doc.getObject("XY_Plane"), [""])
sketch17.MapMode = "FlatFace"
sketch17.AttachmentOffset = App.Placement(App.Vector(0, 0, -34.2), App.Rotation())
sketch17.addGeometry(Part.Circle(App.Vector(17.5, 12, 0), App.Vector(0, 0, 1), 1), False)
sketch17.addConstraint(Sketcher.Constraint("Diameter", 0, Q("2 mm")))
sketch17.addConstraint(Sketcher.Constraint("DistanceY", -1, 1, 0, 3, Q("12 mm")))
sketch17.addConstraint(Sketcher.Constraint("DistanceX", -1, 1, 0, 3, Q("17.5 mm")))
pocket11 = body.newObject("PartDesign::Pocket", "Pocket010")
pocket11.Profile = sketch17
pocket11.Length = 5
pocket11.Reversed = True

# Sketch on XZ plane
sketch18 = body.newObject("Sketcher::SketchObject", "Sketch017")
sketch18.AttachmentSupport = (doc.getObject("XZ_Plane"), [""])
sketch18.MapMode = "FlatFace"
sketch18.AttachmentOffset = App.Placement(App.Vector(0, 0, -7), App.Rotation())
sketch18.addGeometry(Part.Circle(App.Vector(5.5, -36.5, 0), App.Vector(0, 0, 1), 2.8), False)
sketch18.addConstraint(Sketcher.Constraint("Diameter", 0, Q("5.6 mm")))
sketch18.addConstraint(Sketcher.Constraint("DistanceX", -1, 1, 0, 3, Q("5.5 mm")))
sketch18.addConstraint(Sketcher.Constraint("DistanceY", 0, 3, -1, 1, Q("36.5 mm")))
pocket12 = body.newObject("PartDesign::Pocket", "Pocket011")
pocket12.Profile = sketch18
pocket12.Length = 3
pocket12.Reversed = True

# Sketch on XZ plane
sketch19 = body.newObject("Sketcher::SketchObject", "Sketch018")
sketch19.AttachmentSupport = (doc.getObject("XZ_Plane"), [""])
sketch19.MapMode = "FlatFace"
sketch19.AttachmentOffset = App.Placement(App.Vector(0, 0, -4), App.Rotation())
sketch19.addGeometry(Part.Circle(App.Vector(5.5, -36.5, 0), App.Vector(0, 0, 1), 1.8), False)
sketch19.addConstraint(Sketcher.Constraint("Diameter", 0, Q("3.5 mm")))
sketch19.addConstraint(Sketcher.Constraint("DistanceX", -1, 1, 0, 3, Q("5.5 mm")))
sketch19.addConstraint(Sketcher.Constraint("DistanceY", 0, 3, -1, 1, Q("36.5 mm")))
pocket13 = body.newObject("PartDesign::Pocket", "Pocket012")
pocket13.Profile = sketch19
pocket13.Length = 8
pocket13.Reversed = True

# Sketch on an angled plane
sketch20 = body.newObject("Sketcher::SketchObject", "Sketch019")
sketch20.Placement = App.Placement(App.Vector(11.732495, 0, -4.270279), App.Rotation(App.Vector(-0.342020143, 0, -0.939692621), App.Vector(0, 1, 0), App.Vector(0.939692621, 0, -0.342020143), "ZXY"))
sketch20.addGeometry(Part.Circle(App.Vector(35.5, 12, 0), App.Vector(0, 0, 1), 4.5), False)
sketch20.addConstraint(Sketcher.Constraint("Diameter", 0, Q("9 mm")))
sketch20.addConstraint(Sketcher.Constraint("DistanceY", -1, 1, 0, 3, Q("12 mm")))
sketch20.addConstraint(Sketcher.Constraint("DistanceX", -1, 1, 0, 3, Q("35.530997 mm")))
pocket14 = body.newObject("PartDesign::Pocket", "Pocket013")
pocket14.Profile = sketch20
pocket14.Length = 1.7

# Sketch on an angled plane
sketch21 = body.newObject("Sketcher::SketchObject", "Sketch020")
sketch21.Placement = App.Placement(App.Vector(10.135018, 0, -3.688845), App.Rotation(App.Vector(-0.342020143, 0, -0.939692621), App.Vector(0, 1, 0), App.Vector(0.939692621, 0, -0.342020143), "ZXY"))
sketch21.addGeometry(Part.LineSegment(App.Vector(32.8, 17, 0), App.Vector(32.8, 12, 0)), False)
sketch21.addGeometry(Part.ArcOfCircle(Part.Circle(App.Vector(35.5, 12, 0), App.Vector(0, 0, 1), 2.7), math.radians(180), math.radians(360)), False)
sketch21.addGeometry(Part.LineSegment(App.Vector(38.2, 12, 0), App.Vector(38.2, 17, 0)), False)
sketch21.addGeometry(Part.LineSegment(App.Vector(38.2, 17, 0), App.Vector(32.8, 17, 0)), False)
sketch21.addConstraint(Sketcher.Constraint("Tangent", 0, 2, 1, 1))
sketch21.addConstraint(Sketcher.Constraint("Tangent", 1, 2, 2, 1))
sketch21.addConstraint(Sketcher.Constraint("Coincident", 2, 2, 3, 1))
sketch21.addConstraint(Sketcher.Constraint("Coincident", 3, 2, 0, 1))
sketch21.addConstraint(Sketcher.Constraint("Vertical", 0))
sketch21.addConstraint(Sketcher.Constraint("Vertical", 2))
sketch21.addConstraint(Sketcher.Constraint("Horizontal", 3))
sketch21.addConstraint(Sketcher.Constraint("Radius", 1, Q("2.7 mm")))
sketch21.addConstraint(Sketcher.Constraint("DistanceY", 0, 2, 0, 1, Q("5 mm")))
sketch21.addConstraint(Sketcher.Constraint("DistanceY", -1, 1, 1, 3, Q("12 mm")))
sketch21.addConstraint(Sketcher.Constraint("DistanceX", -1, 1, 1, 3, Q("35.530997 mm")))
pocket15 = body.newObject("PartDesign::Pocket", "Pocket014")
pocket15.Profile = sketch21
pocket15.Type = "TwoLengths"
pocket15.Length = 1.7
pocket15.Length2 = 31.7
pocket15.Reversed = True

# Sketch on XZ plane
sketch22 = body.newObject("Sketcher::SketchObject", "Sketch021")
sketch22.AttachmentSupport = (doc.getObject("XZ_Plane"), [""])
sketch22.MapMode = "FlatFace"
sketch22.AttachmentOffset = App.Placement(App.Vector(0, 0, -2), App.Rotation())
sketch22.addGeometry(Part.Circle(App.Vector(5.5, -5.5, 0), App.Vector(0, 0, 1), 1.8), False)
sketch22.addConstraint(Sketcher.Constraint("Diameter", 0, Q("3.5 mm")))
sketch22.addConstraint(Sketcher.Constraint("DistanceX", -1, 1, 0, 3, Q("5.5 mm")))
sketch22.addConstraint(Sketcher.Constraint("DistanceY", 0, 3, -1, 1, Q("5.5 mm")))
pocket16 = body.newObject("PartDesign::Pocket", "Pocket015")
pocket16.Profile = sketch22
pocket16.Length = 50.7
pocket16.Reversed = True

# Sketch on XY plane
sketch23 = body.newObject("Sketcher::SketchObject", "Sketch022")
sketch23.AttachmentSupport = (doc.getObject("XY_Plane"), [""])
sketch23.MapMode = "FlatFace"
sketch23.addGeometry(Part.Circle(App.Vector(17.5, 14, 0), App.Vector(0, 0, 1), 2.9), False)
sketch23.addConstraint(Sketcher.Constraint("Diameter", 0, Q("5.8 mm")))
sketch23.addConstraint(Sketcher.Constraint("DistanceY", -1, 1, 0, 3, Q("14 mm")))
sketch23.addConstraint(Sketcher.Constraint("DistanceX", -1, 1, 0, 3, Q("17.5 mm")))
pocket17 = body.newObject("PartDesign::Pocket", "Pocket016")
pocket17.Profile = sketch23
pocket17.Length = 2.325
pocket17.TaperAngle = -30

# Sketch on XY plane
sketch24 = body.newObject("Sketcher::SketchObject", "Sketch023")
sketch24.AttachmentSupport = (doc.getObject("XY_Plane"), [""])
sketch24.MapMode = "FlatFace"
sketch24.AttachmentOffset = App.Placement(App.Vector(0, 0, -2.325), App.Rotation())
sketch24.addGeometry(Part.Circle(App.Vector(17.5, 14, 0), App.Vector(0, 0, 1), 1.6), False)
sketch24.addConstraint(Sketcher.Constraint("DistanceY", -1, 1, 0, 3, Q("14 mm")))
sketch24.addConstraint(Sketcher.Constraint("DistanceX", -1, 1, 0, 3, Q("17.5 mm")))
sketch24.addConstraint(Sketcher.Constraint("Diameter", 0, Q("3.115321 mm")))
pocket18 = body.newObject("PartDesign::Pocket", "Pocket017")
pocket18.Profile = sketch24
pocket18.Type = "UpToFirst"

# Sketch on XY plane
sketch25 = body.newObject("Sketcher::SketchObject", "Sketch024")
sketch25.AttachmentSupport = (doc.getObject("XY_Plane"), [""])
sketch25.MapMode = "FlatFace"
sketch25.AttachmentOffset = App.Placement(App.Vector(0, 0, -50), App.Rotation())
sketch25.addGeometry(Part.Circle(App.Vector(18, 10, 0), App.Vector(0, 0, 1), 7), False)
sketch25.addConstraint(Sketcher.Constraint("Diameter", 0, Q("14 mm")))
sketch25.addConstraint(Sketcher.Constraint("DistanceY", -1, 1, 0, 3, Q("10.4 mm")))
sketch25.addConstraint(Sketcher.Constraint("DistanceX", -1, 1, 0, 3, Q("17.699942 mm")))
pocket19 = body.newObject("PartDesign::Pocket", "Pocket018")
pocket19.Profile = sketch25
pocket19.Length = 5.8
pocket19.Reversed = True

# Sketch on XZ plane
sketch26 = body.newObject("Sketcher::SketchObject", "Sketch025")
sketch26.AttachmentSupport = (doc.getObject("XZ_Plane"), [""])
sketch26.MapMode = "FlatFace"
sketch26.AttachmentOffset = App.Placement(App.Vector(0, 0, -4), App.Rotation())
sketch26.addGeometry(Part.Circle(App.Vector(22.7, -46, 0), App.Vector(0, 0, 1), 1.5), False)
sketch26.addGeometry(Part.Circle(App.Vector(12.7, -46, 0), App.Vector(0, 0, 1), 1.5), False)
sketch26.addConstraint(Sketcher.Constraint("Equal", 0, 1))
sketch26.addConstraint(Sketcher.Constraint("Horizontal", 0, 3, 1, 3))
sketch26.addConstraint(Sketcher.Constraint("Diameter", 0, Q("3 mm")))
sketch26.addConstraint(Sketcher.Constraint("DistanceY", 0, 3, -1, 1, Q("46 mm")))
sketch26.addConstraint(Sketcher.Constraint("DistanceX", -1, 1, 0, 3, Q("22.735431 mm")))
sketch26.addConstraint(Sketcher.Constraint("DistanceX", 1, 3, 0, 3, Q("10.070979 mm")))
pocket20 = body.newObject("PartDesign::Pocket", "Pocket019")
pocket20.Profile = sketch26
pocket20.Type = "ThroughAll"
pocket20.Reversed = True

# Sketch on XZ plane
sketch27 = body.newObject("Sketcher::SketchObject", "Sketch026")
sketch27.AttachmentSupport = (doc.getObject("XZ_Plane"), [""])
sketch27.MapMode = "FlatFace"
sketch27.addGeometry(Part.Circle(App.Vector(67, -32, 0), App.Vector(0, 0, 1), 5), False)
sketch27.addConstraint(Sketcher.Constraint("Diameter", 0, Q("10 mm")))
sketch27.addConstraint(Sketcher.Constraint("DistanceX", -1, 1, 0, 3, Q("67 mm")))
sketch27.addConstraint(Sketcher.Constraint("DistanceY", 0, 3, -1, 1, Q("32 mm")))
pocket21 = body.newObject("PartDesign::Pocket", "Pocket020")
pocket21.Profile = sketch27
pocket21.Length = 2
doc.recompute()

datumplane4 = body.newObject("PartDesign::Plane", "DatumPlane003")
datumplane4.AttachmentSupport = (doc.getObject("XY_Plane"), [""])
datumplane4.MapMode = "FlatFace"
datumplane4.AttachmentOffset = App.Placement(App.Vector(0, 0, -21), App.Rotation())
mirrored4 = body.newObject("PartDesign::Mirrored", "Mirrored003")
mirrored4.Originals = [pocket21]
mirrored4.MirrorPlane = (datumplane4, [""])
body.Tip = mirrored4

# Sketch on XZ plane
sketch28 = body.newObject("Sketcher::SketchObject", "Sketch027")
sketch28.AttachmentSupport = (doc.getObject("XZ_Plane"), [""])
sketch28.MapMode = "FlatFace"
sketch28.AttachmentOffset = App.Placement(App.Vector(0, 0, -8), App.Rotation())
sketch28.addGeometry(Part.Circle(App.Vector(67, -10, 0), App.Vector(0, 0, 1), 2.6), False)
sketch28.addConstraint(Sketcher.Constraint("Diameter", 0, Q("5.2 mm")))
sketch28.addConstraint(Sketcher.Constraint("DistanceX", -1, 1, 0, 3, Q("67 mm")))
sketch28.addConstraint(Sketcher.Constraint("DistanceY", 0, 3, -1, 1, Q("10 mm")))
pocket22 = body.newObject("PartDesign::Pocket", "Pocket021")
pocket22.Profile = sketch28
pocket22.Length = 6
pocket22.Reversed = True

# Sketch on XZ plane
sketch29 = body.newObject("Sketcher::SketchObject", "Sketch028")
sketch29.AttachmentSupport = (doc.getObject("XZ_Plane"), [""])
sketch29.MapMode = "FlatFace"
sketch29.AttachmentOffset = App.Placement(App.Vector(0, 0, -8), App.Rotation())
sketch29.addGeometry(Part.Circle(App.Vector(67, -32, 0), App.Vector(0, 0, 1), 2.6), False)
sketch29.addConstraint(Sketcher.Constraint("Diameter", 0, Q("5.2 mm")))
sketch29.addConstraint(Sketcher.Constraint("DistanceX", -1, 1, 0, 3, Q("67 mm")))
sketch29.addConstraint(Sketcher.Constraint("DistanceY", 0, 3, -1, 1, Q("32 mm")))
pocket23 = body.newObject("PartDesign::Pocket", "Pocket022")
pocket23.Profile = sketch29
pocket23.Length = 6
pocket23.Reversed = True

# Sketch on XY plane
sketch30 = body.newObject("Sketcher::SketchObject", "Sketch029")
sketch30.AttachmentSupport = (doc.getObject("XY_Plane"), [""])
sketch30.MapMode = "FlatFace"
sketch30.AttachmentOffset = App.Placement(App.Vector(0, 0, -32.5), App.Rotation())
sketch30.addGeometry(Part.Circle(App.Vector(17.5, 12, 0), App.Vector(0, 0, 1), 1), False)
sketch30.addConstraint(Sketcher.Constraint("Diameter", 0, Q("2 mm")))
sketch30.addConstraint(Sketcher.Constraint("DistanceY", -1, 1, 0, 3, Q("12 mm")))
sketch30.addConstraint(Sketcher.Constraint("DistanceX", -1, 1, 0, 3, Q("17.5 mm")))
pocket24 = body.newObject("PartDesign::Pocket", "Pocket023")
pocket24.Profile = sketch30
pocket24.Length = 2.3
pocket24.Reversed = True
pocket24.TaperAngle = 28

doc.recompute()
